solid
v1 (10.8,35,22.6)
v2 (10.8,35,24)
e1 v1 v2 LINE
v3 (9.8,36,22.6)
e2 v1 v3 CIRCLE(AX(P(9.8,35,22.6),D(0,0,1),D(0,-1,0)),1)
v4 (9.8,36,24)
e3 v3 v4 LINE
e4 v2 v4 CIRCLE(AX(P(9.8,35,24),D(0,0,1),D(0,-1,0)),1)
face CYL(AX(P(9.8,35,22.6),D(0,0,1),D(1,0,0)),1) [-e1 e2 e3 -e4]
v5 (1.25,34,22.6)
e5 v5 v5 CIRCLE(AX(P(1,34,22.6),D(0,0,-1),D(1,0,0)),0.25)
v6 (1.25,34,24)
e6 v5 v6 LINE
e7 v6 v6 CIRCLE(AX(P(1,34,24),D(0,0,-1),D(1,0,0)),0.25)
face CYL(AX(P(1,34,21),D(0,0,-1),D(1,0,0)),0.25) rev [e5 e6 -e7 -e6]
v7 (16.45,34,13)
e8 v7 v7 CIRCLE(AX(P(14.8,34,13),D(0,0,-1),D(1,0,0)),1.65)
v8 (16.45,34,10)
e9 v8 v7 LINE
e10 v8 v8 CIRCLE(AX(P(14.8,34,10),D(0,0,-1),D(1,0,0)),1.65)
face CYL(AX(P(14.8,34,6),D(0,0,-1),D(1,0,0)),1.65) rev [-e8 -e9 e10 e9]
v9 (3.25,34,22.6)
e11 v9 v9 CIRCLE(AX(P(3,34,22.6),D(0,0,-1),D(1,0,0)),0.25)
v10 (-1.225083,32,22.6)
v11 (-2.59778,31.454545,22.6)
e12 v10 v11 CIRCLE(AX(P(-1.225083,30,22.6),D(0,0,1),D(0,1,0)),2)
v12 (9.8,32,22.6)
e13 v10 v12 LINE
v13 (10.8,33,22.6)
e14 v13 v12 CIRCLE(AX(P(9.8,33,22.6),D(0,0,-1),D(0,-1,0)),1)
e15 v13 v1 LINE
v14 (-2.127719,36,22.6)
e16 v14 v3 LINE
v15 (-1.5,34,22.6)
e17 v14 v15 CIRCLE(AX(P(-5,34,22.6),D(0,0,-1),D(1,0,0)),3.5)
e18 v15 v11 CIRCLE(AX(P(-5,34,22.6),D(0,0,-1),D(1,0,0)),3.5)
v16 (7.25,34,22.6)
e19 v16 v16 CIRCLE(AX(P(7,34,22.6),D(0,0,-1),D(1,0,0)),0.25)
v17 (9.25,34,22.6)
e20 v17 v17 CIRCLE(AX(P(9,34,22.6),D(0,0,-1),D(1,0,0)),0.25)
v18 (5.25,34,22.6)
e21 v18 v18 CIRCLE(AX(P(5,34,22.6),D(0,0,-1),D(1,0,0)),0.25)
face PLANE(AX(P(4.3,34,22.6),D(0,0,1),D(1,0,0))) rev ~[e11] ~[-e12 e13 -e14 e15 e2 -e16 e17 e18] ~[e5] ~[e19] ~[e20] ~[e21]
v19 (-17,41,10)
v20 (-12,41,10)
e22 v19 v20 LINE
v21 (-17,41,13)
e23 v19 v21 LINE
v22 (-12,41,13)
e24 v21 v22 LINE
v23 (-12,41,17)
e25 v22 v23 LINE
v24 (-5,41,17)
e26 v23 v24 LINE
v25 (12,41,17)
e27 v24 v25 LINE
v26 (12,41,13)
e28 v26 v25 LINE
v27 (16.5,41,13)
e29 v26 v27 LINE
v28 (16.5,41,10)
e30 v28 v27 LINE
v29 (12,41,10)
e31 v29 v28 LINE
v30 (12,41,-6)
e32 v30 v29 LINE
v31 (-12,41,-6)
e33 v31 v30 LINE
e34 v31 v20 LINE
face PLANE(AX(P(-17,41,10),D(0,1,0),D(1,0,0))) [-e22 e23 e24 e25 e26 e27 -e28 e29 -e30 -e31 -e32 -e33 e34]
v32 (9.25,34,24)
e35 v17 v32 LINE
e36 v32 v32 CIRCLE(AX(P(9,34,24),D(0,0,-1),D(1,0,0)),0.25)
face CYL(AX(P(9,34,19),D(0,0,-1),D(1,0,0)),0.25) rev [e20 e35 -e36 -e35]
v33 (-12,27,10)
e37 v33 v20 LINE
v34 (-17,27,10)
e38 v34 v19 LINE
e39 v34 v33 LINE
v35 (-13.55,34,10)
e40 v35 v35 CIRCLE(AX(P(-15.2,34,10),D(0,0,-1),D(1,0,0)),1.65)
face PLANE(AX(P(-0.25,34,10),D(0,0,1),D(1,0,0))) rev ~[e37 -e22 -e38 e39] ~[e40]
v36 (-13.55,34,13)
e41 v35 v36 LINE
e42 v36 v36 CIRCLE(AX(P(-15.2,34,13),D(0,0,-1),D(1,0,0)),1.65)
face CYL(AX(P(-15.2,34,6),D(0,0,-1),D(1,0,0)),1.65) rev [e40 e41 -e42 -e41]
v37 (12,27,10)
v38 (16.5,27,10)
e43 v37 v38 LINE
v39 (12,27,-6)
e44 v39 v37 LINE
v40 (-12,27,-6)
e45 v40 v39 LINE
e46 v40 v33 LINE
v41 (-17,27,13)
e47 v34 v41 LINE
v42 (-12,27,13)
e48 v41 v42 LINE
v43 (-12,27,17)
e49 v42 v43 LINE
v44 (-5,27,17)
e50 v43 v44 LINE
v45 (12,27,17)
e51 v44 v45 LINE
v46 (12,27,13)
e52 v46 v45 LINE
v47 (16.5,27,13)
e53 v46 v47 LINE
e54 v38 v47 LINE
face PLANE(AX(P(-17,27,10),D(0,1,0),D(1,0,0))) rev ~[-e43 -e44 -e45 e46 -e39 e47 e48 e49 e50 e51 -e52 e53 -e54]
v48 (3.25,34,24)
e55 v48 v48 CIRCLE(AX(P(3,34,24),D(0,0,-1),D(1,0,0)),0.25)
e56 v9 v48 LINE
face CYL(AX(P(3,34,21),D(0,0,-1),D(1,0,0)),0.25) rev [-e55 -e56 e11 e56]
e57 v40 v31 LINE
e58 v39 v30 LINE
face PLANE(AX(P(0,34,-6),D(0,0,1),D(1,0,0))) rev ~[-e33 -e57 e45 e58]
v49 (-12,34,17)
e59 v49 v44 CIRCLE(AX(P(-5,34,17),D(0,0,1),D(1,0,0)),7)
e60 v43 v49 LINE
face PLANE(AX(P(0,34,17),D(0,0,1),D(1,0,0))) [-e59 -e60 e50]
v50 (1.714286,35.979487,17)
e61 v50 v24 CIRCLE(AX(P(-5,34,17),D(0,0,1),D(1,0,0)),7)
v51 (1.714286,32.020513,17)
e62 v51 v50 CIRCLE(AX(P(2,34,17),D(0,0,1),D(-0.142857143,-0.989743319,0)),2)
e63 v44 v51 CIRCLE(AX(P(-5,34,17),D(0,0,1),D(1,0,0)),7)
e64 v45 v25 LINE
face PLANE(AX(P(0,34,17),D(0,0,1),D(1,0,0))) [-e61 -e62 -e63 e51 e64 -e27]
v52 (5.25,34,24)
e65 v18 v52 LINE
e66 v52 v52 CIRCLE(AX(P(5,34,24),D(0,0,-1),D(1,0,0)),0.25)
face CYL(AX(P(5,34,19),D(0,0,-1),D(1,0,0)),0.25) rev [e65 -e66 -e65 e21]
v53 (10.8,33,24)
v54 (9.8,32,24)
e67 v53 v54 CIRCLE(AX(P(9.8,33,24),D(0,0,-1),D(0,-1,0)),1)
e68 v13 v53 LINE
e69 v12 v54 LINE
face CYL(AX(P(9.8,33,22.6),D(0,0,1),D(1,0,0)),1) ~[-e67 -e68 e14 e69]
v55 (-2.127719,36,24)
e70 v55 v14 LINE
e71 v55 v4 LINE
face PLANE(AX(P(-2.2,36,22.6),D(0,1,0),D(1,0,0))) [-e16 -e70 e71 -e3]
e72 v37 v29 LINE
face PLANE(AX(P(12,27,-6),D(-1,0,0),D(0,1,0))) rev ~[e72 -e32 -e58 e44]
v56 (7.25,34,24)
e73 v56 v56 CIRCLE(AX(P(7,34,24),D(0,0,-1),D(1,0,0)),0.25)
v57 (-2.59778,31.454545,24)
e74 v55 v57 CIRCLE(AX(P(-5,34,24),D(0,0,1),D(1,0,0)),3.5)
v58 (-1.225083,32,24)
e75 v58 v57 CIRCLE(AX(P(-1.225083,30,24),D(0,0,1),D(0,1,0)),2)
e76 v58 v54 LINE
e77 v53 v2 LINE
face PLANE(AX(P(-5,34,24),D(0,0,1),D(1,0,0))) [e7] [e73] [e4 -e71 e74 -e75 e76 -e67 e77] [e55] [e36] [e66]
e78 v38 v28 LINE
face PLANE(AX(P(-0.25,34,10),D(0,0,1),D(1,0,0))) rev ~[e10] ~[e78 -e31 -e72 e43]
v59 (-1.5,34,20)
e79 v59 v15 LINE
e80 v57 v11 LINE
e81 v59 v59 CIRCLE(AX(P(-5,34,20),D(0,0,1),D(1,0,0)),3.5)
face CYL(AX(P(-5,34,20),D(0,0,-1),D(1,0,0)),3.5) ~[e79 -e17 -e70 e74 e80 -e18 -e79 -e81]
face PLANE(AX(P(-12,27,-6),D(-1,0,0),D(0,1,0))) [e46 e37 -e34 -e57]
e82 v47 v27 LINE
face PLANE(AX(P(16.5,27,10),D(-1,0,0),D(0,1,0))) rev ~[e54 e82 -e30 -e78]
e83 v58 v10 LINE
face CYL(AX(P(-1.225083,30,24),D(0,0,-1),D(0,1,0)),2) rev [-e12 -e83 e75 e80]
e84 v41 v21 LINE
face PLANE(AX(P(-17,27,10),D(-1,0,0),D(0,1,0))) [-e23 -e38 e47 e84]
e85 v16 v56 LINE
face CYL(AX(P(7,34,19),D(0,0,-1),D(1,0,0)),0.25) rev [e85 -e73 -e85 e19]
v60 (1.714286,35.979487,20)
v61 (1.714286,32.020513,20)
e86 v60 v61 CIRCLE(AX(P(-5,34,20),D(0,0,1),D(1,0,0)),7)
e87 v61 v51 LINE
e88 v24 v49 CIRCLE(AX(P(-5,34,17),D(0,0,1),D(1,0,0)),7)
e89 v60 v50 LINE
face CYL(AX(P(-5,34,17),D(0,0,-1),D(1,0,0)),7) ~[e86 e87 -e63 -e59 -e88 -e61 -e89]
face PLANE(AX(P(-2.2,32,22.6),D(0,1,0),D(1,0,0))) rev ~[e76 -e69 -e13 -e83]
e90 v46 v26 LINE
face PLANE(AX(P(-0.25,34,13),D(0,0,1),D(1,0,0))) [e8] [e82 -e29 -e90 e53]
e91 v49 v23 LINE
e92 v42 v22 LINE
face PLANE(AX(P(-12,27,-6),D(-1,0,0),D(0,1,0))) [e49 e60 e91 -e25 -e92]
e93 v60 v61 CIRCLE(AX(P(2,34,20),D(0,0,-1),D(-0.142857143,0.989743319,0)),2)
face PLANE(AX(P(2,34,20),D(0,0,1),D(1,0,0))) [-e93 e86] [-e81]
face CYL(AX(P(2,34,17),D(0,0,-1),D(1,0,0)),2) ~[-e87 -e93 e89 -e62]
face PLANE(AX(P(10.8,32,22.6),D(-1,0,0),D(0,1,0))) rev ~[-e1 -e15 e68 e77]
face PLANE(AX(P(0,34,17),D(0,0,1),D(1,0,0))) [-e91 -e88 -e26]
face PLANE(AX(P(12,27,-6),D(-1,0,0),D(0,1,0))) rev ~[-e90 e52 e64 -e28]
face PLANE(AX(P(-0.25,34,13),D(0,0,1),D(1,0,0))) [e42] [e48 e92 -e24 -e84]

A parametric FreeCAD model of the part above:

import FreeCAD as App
import Part
import Sketcher

V = App.Vector
Q = App.Units.Quantity


def edges_at(feature, points):
    """Names of the edges that pass closest to the given points."""
    edges = feature.Shape.Edges
    near = lambda p: min(range(len(edges)), key=lambda i: edges[i].distToShape(Part.Vertex(*p))[0])
    return sorted({f"Edge{near(p) + 1}" for p in points})

doc = App.newDocument("Part")
body = doc.addObject("PartDesign::Body", "Body")

sketch1 = body.newObject("Sketcher::SketchObject", "Sketch")
sketch1.AttachmentSupport = (doc.getObject("XY_Plane"), [""])
sketch1.MapMode = "FlatFace"
sketch1.AttachmentOffset = App.Placement(V(0, 0, 25), App.Rotation())
sketch1.addGeometry(Part.Circle(V(19, 7, 0), V(0, 0, 1), 0.25), False)
sketch1.addConstraint([
    Sketcher.Constraint("Diameter", 0, Q("0.5 mm")),
    Sketcher.Constraint("DistanceX", -1, 1, 0, 3, Q("19 mm")),
    Sketcher.Constraint("DistanceY", -1, 1, 0, 3, Q("7 mm")),
])
pad1 = body.newObject("PartDesign::Pad", "Pad")
pad1.Profile = sketch1
pad1.Length = 10
body2 = doc.addObject("PartDesign::Body", "Body001")

sketch2 = body2.newObject("Sketcher::SketchObject", "Sketch001")
sketch2.AttachmentSupport = (doc.getObject("XY_Plane001"), [""])
sketch2.MapMode = "FlatFace"
sketch2.AttachmentOffset = App.Placement(V(0, 0, 25), App.Rotation())
sketch2.addGeometry(Part.Circle(V(17, 7, 0), V(0, 0, 1), 0.25), False)
sketch2.addConstraint([
    Sketcher.Constraint("Diameter", 0, Q("0.5 mm")),
    Sketcher.Constraint("DistanceX", -1, 1, 0, 3, Q("17 mm")),
    Sketcher.Constraint("DistanceY", -1, 1, 0, 3, Q("7 mm")),
])
pad2 = body2.newObject("PartDesign::Pad", "Pad001")
pad2.Profile = sketch2
pad2.Length = 10
body3 = doc.addObject("PartDesign::Body", "Body002")

sketch3 = body3.newObject("Sketcher::SketchObject", "Sketch002")
sketch3.AttachmentSupport = (doc.getObject("XY_Plane002"), [""])
sketch3.MapMode = "FlatFace"
sketch3.AttachmentOffset = App.Placement(V(0, 0, 27), App.Rotation())
sketch3.addGeometry(Part.Circle(V(15, 7, 0), V(0, 0, 1), 0.25), False)
sketch3.addConstraint([
    Sketcher.Constraint("Diameter", 0, Q("0.5 mm")),
    Sketcher.Constraint("DistanceX", -1, 1, 0, 3, Q("15 mm")),
    Sketcher.Constraint("DistanceY", -1, 1, 0, 3, Q("7 mm")),
])
pad3 = body3.newObject("PartDesign::Pad", "Pad002")
pad3.Profile = sketch3
pad3.Length = 10
body4 = doc.addObject("PartDesign::Body", "Body003")

sketch4 = body4.newObject("Sketcher::SketchObject", "Sketch003")
sketch4.AttachmentSupport = (doc.getObject("XY_Plane003"), [""])
sketch4.MapMode = "FlatFace"
sketch4.AttachmentOffset = App.Placement(V(0, 0, 27), App.Rotation())
sketch4.addGeometry(Part.Circle(V(13, 7, 0), V(0, 0, 1), 0.25), False)
sketch4.addConstraint([
    Sketcher.Constraint("Diameter", 0, Q("0.5 mm")),
    Sketcher.Constraint("DistanceX", -1, 1, 0, 3, Q("13 mm")),
    Sketcher.Constraint("DistanceY", -1, 1, 0, 3, Q("7 mm")),
])
pad4 = body4.newObject("PartDesign::Pad", "Pad003")
pad4.Profile = sketch4
pad4.Length = 10
body5 = doc.addObject("PartDesign::Body", "Body004")

sketch5 = body5.newObject("Sketcher::SketchObject", "Sketch004")
sketch5.AttachmentSupport = (doc.getObject("XY_Plane004"), [""])
sketch5.MapMode = "FlatFace"
sketch5.AttachmentOffset = App.Placement(V(0, 0, 25), App.Rotation())
sketch5.addGeometry(Part.Circle(V(21, 7, 0), V(0, 0, 1), 0.25), False)
sketch5.addConstraint([
    Sketcher.Constraint("Diameter", 0, Q("0.5 mm")),
    Sketcher.Constraint("DistanceX", -1, 1, 0, 3, Q("21 mm")),
    Sketcher.Constraint("DistanceY", -1, 1, 0, 3, Q("7 mm")),
])
pad5 = body5.newObject("PartDesign::Pad", "Pad004")
pad5.Profile = sketch5
pad5.Length = 10
body6 = doc.addObject("PartDesign::Body", "Body005")

sketch6 = body6.newObject("Sketcher::SketchObject", "Sketch005")
sketch6.AttachmentSupport = (doc.getObject("XY_Plane005"), [""])
sketch6.MapMode = "FlatFace"
sketch6.AttachmentOffset = App.Placement(V(0, 0, 28.6), App.Rotation())
sketch6.addGeometry([
    Part.LineSegment(V(9.8, 9, 0), V(9.8, 5, 0)),
    Part.LineSegment(V(9.8, 5, 0), V(22.8, 5, 0)),
    Part.LineSegment(V(22.8, 5, 0), V(22.8, 9, 0)),
    Part.LineSegment(V(22.8, 9, 0), V(9.8, 9, 0)),
], False)
sketch6.addConstraint([
    Sketcher.Constraint("Coincident", 0, 2, 1, 1),
    Sketcher.Constraint("Coincident", 1, 2, 2, 1),
    Sketcher.Constraint("Coincident", 2, 2, 3, 1),
    Sketcher.Constraint("Coincident", 3, 2, 0, 1),
    Sketcher.Constraint("Vertical", 0),
    Sketcher.Constraint("Horizontal", 1),
    Sketcher.Constraint("Vertical", 2),
    Sketcher.Constraint("Horizontal", 3),
    Sketcher.Constraint("DistanceX", 1, 1, 1, 2, Q("13 mm")),
    Sketcher.Constraint("DistanceY", 0, 2, 0, 1, Q("4 mm")),
    Sketcher.Constraint("DistanceY", -1, 1, 0, 2, Q("5 mm")),
    Sketcher.Constraint("DistanceX", -1, 1, 0, 2, Q("9.8 mm")),
])
pad6 = body6.newObject("PartDesign::Pad", "Pad005")
pad6.Profile = sketch6
pad6.Length = 1.4
body7 = doc.addObject("PartDesign::Body", "Body006")

sketch7 = body7.newObject("Sketcher::SketchObject", "Sketch006")
sketch7.AttachmentSupport = (doc.getObject("XY_Plane006"), [""])
sketch7.MapMode = "FlatFace"
sketch7.AttachmentOffset = App.Placement(V(0, 0, 26), App.Rotation())
sketch7.addGeometry(Part.Circle(V(7, 7, 0), V(0, 0, 1), 3.5), False)
sketch7.addConstraint([
    Sketcher.Constraint("Diameter", 0, Q("7 mm")),
    Sketcher.Constraint("DistanceX", -1, 1, 0, 3, Q("7 mm")),
    Sketcher.Constraint("DistanceY", -1, 1, 0, 3, Q("7 mm")),
])
pad7 = body7.newObject("PartDesign::Pad", "Pad006")
pad7.Profile = sketch7
pad7.Length = 4
doc.recompute()

boolean = body7.newObject("PartDesign::Boolean", "Boolean")
boolean.Type = "Fuse"
boolean.addObjects([body6])
doc.recompute()

fillet = body7.newObject("PartDesign::Fillet", "Fillet")
fillet.Base = (boolean, edges_at(boolean, [(9.872, 5, 29.3)]))
fillet.Radius = 2
doc.recompute()

fillet2 = body7.newObject("PartDesign::Fillet", "Fillet001")
fillet2.Base = (fillet, edges_at(fillet, [(22.8, 5, 29.3)]))
fillet2.Radius = 1
doc.recompute()

fillet3 = body7.newObject("PartDesign::Fillet", "Fillet002")
fillet3.Base = (fillet2, edges_at(fillet2, [(22.8, 9, 29.3)]))
fillet3.Radius = 1
body8 = doc.addObject("PartDesign::Body", "Body007")

sketch8 = body8.newObject("Sketcher::SketchObject", "Sketch007")
sketch8.AttachmentSupport = (doc.getObject("XY_Plane007"), [""])
sketch8.MapMode = "FlatFace"
sketch8.AttachmentOffset = App.Placement(V(0, 0, 12), App.Rotation())
sketch8.addGeometry(Part.Circle(V(26.8, 7, 0), V(0, 0, 1), 1.6), False)
sketch8.addConstraint([
    Sketcher.Constraint("Diameter", 0, Q("3.3 mm")),
    Sketcher.Constraint("DistanceY", -1, 1, 0, 3, Q("7 mm")),
    Sketcher.Constraint("DistanceX", -1, 1, 0, 3, Q("26.8 mm")),
])
pad8 = body8.newObject("PartDesign::Pad", "Pad007")
pad8.Profile = sketch8
pad8.Length = 10
body9 = doc.addObject("PartDesign::Body", "Body008")

sketch9 = body9.newObject("Sketcher::SketchObject", "Sketch008")
sketch9.AttachmentSupport = (doc.getObject("XY_Plane008"), [""])
sketch9.MapMode = "FlatFace"
sketch9.AttachmentOffset = App.Placement(V(0, 0, 12), App.Rotation())
sketch9.addGeometry(Part.Circle(V(-3.2, 7, 0), V(0, 0, 1), 1.6), False)
sketch9.addConstraint([
    Sketcher.Constraint("Diameter", 0, Q("3.3 mm")),
    Sketcher.Constraint("DistanceY", -1, 1, 0, 3, Q("7 mm")),
    Sketcher.Constraint("DistanceX", 0, 3, -1, 1, Q("3.2 mm")),
])
pad9 = body9.newObject("PartDesign::Pad", "Pad008")
pad9.Profile = sketch9
pad9.Length = 10
body10 = doc.addObject("PartDesign::Body", "Body009")

sketch10 = body10.newObject("Sketcher::SketchObject", "Sketch009")
sketch10.AttachmentSupport = (doc.getObject("XY_Plane009"), [""])
sketch10.MapMode = "FlatFace"
sketch10.AttachmentOffset = App.Placement(V(0, 0, 16), App.Rotation())
sketch10.addGeometry([
    Part.LineSegment(V(-5, 14, 0), V(-5, 0, 0)),
    Part.LineSegment(V(-5, 0, 0), V(28, 0, 0)),
    Part.LineSegment(V(28, 0, 0), V(28, 14, 0)),
    Part.LineSegment(V(28, 14, 0), V(-5, 14, 0)),
], False)
sketch10.addConstraint([
    Sketcher.Constraint("Coincident", 0, 2, 1, 1),
    Sketcher.Constraint("Coincident", 1, 2, 2, 1),
    Sketcher.Constraint("Coincident", 2, 2, 3, 1),
    Sketcher.Constraint("Coincident", 3, 2, 0, 1),
    Sketcher.Constraint("Vertical", 0),
    Sketcher.Constraint("Horizontal", 1),
    Sketcher.Constraint("Vertical", 2),
    Sketcher.Constraint("Horizontal", 3),
    Sketcher.Constraint("PointOnObject", 0, 2, -1),
    Sketcher.Constraint("DistanceY", 0, 2, 0, 1, Q("14 mm")),
    Sketcher.Constraint("DistanceX", 1, 1, 1, 2, Q("33.5 mm")),
    Sketcher.Constraint("DistanceX", 0, 2, -1, 1, Q("5 mm")),
])
pad10 = body10.newObject("PartDesign::Pad", "Pad009")
pad10.Profile = sketch10
pad10.Length = 3
body11 = doc.addObject("PartDesign::Body", "Body010")

sketch11 = body11.newObject("Sketcher::SketchObject", "Sketch010")
sketch11.AttachmentSupport = (doc.getObject("XY_Plane010"), [""])
sketch11.MapMode = "FlatFace"
sketch11.AttachmentOffset = App.Placement(V(0, 0, 23), App.Rotation())
sketch11.addGeometry(Part.Circle(V(14, 7, 0), V(0, 0, 1), 2), False)
sketch11.addConstraint([
    Sketcher.Constraint("Diameter", 0, Q("4 mm")),
    Sketcher.Constraint("DistanceX", -1, 1, 0, 3, Q("14 mm")),
    Sketcher.Constraint("DistanceY", -1, 1, 0, 3, Q("7 mm")),
])
pad11 = body11.newObject("PartDesign::Pad", "Pad010")
pad11.Profile = sketch11
pad11.Length = 3
body12 = doc.addObject("PartDesign::Body", "Body011")

sketch12 = body12.newObject("Sketcher::SketchObject", "Sketch011")
sketch12.AttachmentSupport = (doc.getObject("XY_Plane011"), [""])
sketch12.MapMode = "FlatFace"
sketch12.AttachmentOffset = App.Placement(V(0, 0, 23), App.Rotation())
sketch12.addGeometry(Part.Circle(V(7, 7, 0), V(0, 0, 1), 7), False)
sketch12.addConstraint([
    Sketcher.Constraint("Diameter", 0, Q("14 mm")),
    Sketcher.Constraint("DistanceX", -1, 1, 0, 3, Q("7 mm")),
    Sketcher.Constraint("DistanceY", -1, 1, 0, 3, Q("7 mm")),
])
pad12 = body12.newObject("PartDesign::Pad", "Pad011")
pad12.Profile = sketch12
pad12.Length = 3
doc.recompute()

boolean2 = body12.newObject("PartDesign::Boolean", "Boolean001")
boolean2.Type = "Fuse"
boolean2.addObjects([body11])
body13 = doc.addObject("PartDesign::Body", "Body012")

sketch13 = body13.newObject("Sketcher::SketchObject", "Sketch012")
sketch13.AttachmentSupport = (doc.getObject("XY_Plane012"), [""])
sketch13.MapMode = "FlatFace"
sketch13.addGeometry([
    Part.LineSegment(V(0, 14, 0), V(0, 0, 0)),
    Part.LineSegment(V(0, 0, 0), V(24, 0, 0)),
    Part.LineSegment(V(24, 0, 0), V(24, 14, 0)),
    Part.LineSegment(V(24, 14, 0), V(0, 14, 0)),
], False)
sketch13.addConstraint([
    Sketcher.Constraint("Coincident", 0, 2, 1, 1),
    Sketcher.Constraint("Coincident", 1, 2, 2, 1),
    Sketcher.Constraint("Coincident", 2, 2, 3, 1),
    Sketcher.Constraint("Coincident", 3, 2, 0, 1),
    Sketcher.Constraint("Vertical", 0),
    Sketcher.Constraint("Horizontal", 1),
    Sketcher.Constraint("Vertical", 2),
    Sketcher.Constraint("Horizontal", 3),
    Sketcher.Constraint("Coincident", 0, 2, -1, 1),
    Sketcher.Constraint("DistanceX", 1, 1, 1, 2, Q("24 mm")),
    Sketcher.Constraint("DistanceY", 0, 2, 0, 1, Q("14 mm")),
])
pad13 = body13.newObject("PartDesign::Pad", "Pad012")
pad13.Profile = sketch13
pad13.Length = 23
doc.recompute()

boolean3 = body13.newObject("PartDesign::Boolean", "Boolean002")
boolean3.Type = "Fuse"
boolean3.addObjects([body12])
doc.recompute()

boolean4 = body13.newObject("PartDesign::Boolean", "Boolean003")
boolean4.Type = "Fuse"
boolean4.addObjects([body10])
doc.recompute()

boolean5 = body13.newObject("PartDesign::Boolean", "Boolean004")
boolean5.Type = "Cut"
boolean5.addObjects([body9])
doc.recompute()

boolean6 = body13.newObject("PartDesign::Boolean", "Boolean005")
boolean6.Type = "Cut"
boolean6.addObjects([body8])
doc.recompute()

boolean7 = body13.newObject("PartDesign::Boolean", "Boolean006")
boolean7.Type = "Fuse"
boolean7.addObjects([body7])
doc.recompute()

boolean8 = body13.newObject("PartDesign::Boolean", "Boolean007")
boolean8.Type = "Cut"
boolean8.addObjects([body5])
doc.recompute()

boolean9 = body13.newObject("PartDesign::Boolean", "Boolean008")
boolean9.Type = "Cut"
boolean9.addObjects([body4])
doc.recompute()

boolean10 = body13.newObject("PartDesign::Boolean", "Boolean009")
boolean10.Type = "Cut"
boolean10.addObjects([body3])
doc.recompute()

boolean11 = body13.newObject("PartDesign::Boolean", "Boolean010")
boolean11.Type = "Cut"
boolean11.addObjects([body2])
doc.recompute()

boolean12 = body13.newObject("PartDesign::Boolean", "Boolean011")
boolean12.Type = "Cut"
boolean12.addObjects([body])
body14 = doc.addObject("PartDesign::Body", "Body013")
doc.recompute()

body13.Placement = App.Placement(V(-12, 27, -6), App.Rotation(V(0, 0, 1), 0))
boolean13 = body14.newObject("PartDesign::Boolean", "Boolean012")
boolean13.Type = "Fuse"
boolean13.addObjects([body13])

doc.recompute()
